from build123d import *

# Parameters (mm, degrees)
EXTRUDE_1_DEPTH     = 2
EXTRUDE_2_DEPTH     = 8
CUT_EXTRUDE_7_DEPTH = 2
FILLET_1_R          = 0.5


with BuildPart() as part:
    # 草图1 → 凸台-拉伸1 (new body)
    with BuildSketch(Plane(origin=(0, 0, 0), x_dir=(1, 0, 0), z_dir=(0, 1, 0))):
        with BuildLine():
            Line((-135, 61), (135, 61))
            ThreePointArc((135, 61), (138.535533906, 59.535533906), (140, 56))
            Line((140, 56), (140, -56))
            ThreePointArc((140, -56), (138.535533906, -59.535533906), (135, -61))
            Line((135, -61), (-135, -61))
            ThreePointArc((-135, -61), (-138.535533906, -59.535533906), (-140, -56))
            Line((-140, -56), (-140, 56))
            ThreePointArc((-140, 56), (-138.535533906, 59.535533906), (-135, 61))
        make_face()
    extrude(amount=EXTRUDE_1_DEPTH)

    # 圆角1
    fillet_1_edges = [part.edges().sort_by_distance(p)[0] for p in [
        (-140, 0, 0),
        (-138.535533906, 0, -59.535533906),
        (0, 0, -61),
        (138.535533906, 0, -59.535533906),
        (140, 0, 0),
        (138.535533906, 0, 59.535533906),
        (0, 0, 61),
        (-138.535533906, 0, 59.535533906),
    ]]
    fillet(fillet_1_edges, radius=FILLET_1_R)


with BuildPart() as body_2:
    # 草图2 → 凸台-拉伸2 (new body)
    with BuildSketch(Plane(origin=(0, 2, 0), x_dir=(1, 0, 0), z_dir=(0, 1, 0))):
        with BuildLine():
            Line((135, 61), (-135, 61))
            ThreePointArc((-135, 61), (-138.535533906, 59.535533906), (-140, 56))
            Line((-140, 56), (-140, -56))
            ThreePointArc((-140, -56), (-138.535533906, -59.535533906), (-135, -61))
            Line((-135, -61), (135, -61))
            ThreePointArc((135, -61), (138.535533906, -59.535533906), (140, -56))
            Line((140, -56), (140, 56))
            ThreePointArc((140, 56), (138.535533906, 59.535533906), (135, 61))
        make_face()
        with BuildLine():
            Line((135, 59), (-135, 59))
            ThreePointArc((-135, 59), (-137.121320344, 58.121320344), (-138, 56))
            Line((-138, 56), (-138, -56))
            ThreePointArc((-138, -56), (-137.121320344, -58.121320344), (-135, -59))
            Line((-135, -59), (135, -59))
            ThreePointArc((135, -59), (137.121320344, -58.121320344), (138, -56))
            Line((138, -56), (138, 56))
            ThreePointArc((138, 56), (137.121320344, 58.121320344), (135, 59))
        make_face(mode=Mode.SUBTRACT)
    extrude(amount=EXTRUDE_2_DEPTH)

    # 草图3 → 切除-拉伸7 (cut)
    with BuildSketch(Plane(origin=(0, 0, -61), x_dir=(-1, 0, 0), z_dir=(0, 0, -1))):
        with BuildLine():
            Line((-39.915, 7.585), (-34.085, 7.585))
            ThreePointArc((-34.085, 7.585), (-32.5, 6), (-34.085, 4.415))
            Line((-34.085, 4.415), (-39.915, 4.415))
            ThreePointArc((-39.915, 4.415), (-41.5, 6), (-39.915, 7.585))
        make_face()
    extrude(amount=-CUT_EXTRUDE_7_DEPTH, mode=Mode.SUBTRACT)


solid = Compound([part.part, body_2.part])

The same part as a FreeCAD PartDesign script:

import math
import FreeCAD as App
import Part
import Sketcher
Q = App.Units.Quantity


def edges_at(feature, points):
    """Names of the edges that pass closest to the given points."""
    edges = feature.Shape.Edges
    near = lambda p: min(range(len(edges)), key=lambda i: edges[i].distToShape(Part.Vertex(*p))[0])
    return sorted({f"Edge{near(p) + 1}" for p in points})

doc = App.newDocument("Part")
body = doc.addObject("PartDesign::Body", "Body")

sketch1 = body.newObject("Sketcher::SketchObject", "Sketch")
sketch1.AttachmentSupport = (doc.getObject("XZ_Plane"), [""])
sketch1.MapMode = "FlatFace"
sketch1.addGeometry([
    Part.LineSegment(App.Vector(135, -61, 0), App.Vector(-135, -61, 0)),
    Part.ArcOfCircle(Part.Circle(App.Vector(-135, -56, 0), App.Vector(0, 0, 1), 5), math.radians(180), math.radians(270)),
    Part.LineSegment(App.Vector(-140, -56, 0), App.Vector(-140, 56, 0)),
    Part.ArcOfCircle(Part.Circle(App.Vector(-135, 56, 0), App.Vector(0, 0, 1), 5), math.radians(90), math.radians(180)),
    Part.LineSegment(App.Vector(-135, 61, 0), App.Vector(135, 61, 0)),
    Part.ArcOfCircle(Part.Circle(App.Vector(135, 56, 0), App.Vector(0, 0, 1), 5), math.radians(0), math.radians(90)),
    Part.LineSegment(App.Vector(140, 56, 0), App.Vector(140, -56, 0)),
    Part.ArcOfCircle(Part.Circle(App.Vector(135, -56, 0), App.Vector(0, 0, 1), 5), math.radians(-90), math.radians(0)),
], False)
sketch1.addConstraint([
    Sketcher.Constraint("Tangent", 0, 2, 1, 2),
    Sketcher.Constraint("Tangent", 1, 1, 2, 1),
    Sketcher.Constraint("Tangent", 2, 2, 3, 2),
    Sketcher.Constraint("Tangent", 3, 1, 4, 1),
    Sketcher.Constraint("Tangent", 4, 2, 5, 2),
    Sketcher.Constraint("Tangent", 5, 1, 6, 1),
    Sketcher.Constraint("Tangent", 6, 2, 7, 2),
    Sketcher.Constraint("Tangent", 7, 1, 0, 1),
    Sketcher.Constraint("Horizontal", 0),
    Sketcher.Constraint("Vertical", 2),
    Sketcher.Constraint("Horizontal", 4),
    Sketcher.Constraint("Vertical", 6),
    Sketcher.Constraint("Equal", 1, 3),
    Sketcher.Constraint("Equal", 3, 5),
    Sketcher.Constraint("Equal", 5, 7),
    Sketcher.Constraint("Symmetric", 1, 3, 5, 3, -1, 1),
    Sketcher.Constraint("Radius", 1, Q("5 mm")),
    Sketcher.Constraint("DistanceX", 0, 2, 0, 1, Q("270 mm")),
    Sketcher.Constraint("DistanceY", 2, 1, 2, 2, Q("112 mm")),
])
pad1 = body.newObject("PartDesign::Pad", "Pad")
pad1.Profile = sketch1
pad1.Length = 2
pad1.Reversed = True
doc.recompute()

fillet = body.newObject("PartDesign::Fillet", "Fillet")
fillet.Base = (pad1, edges_at(pad1, [
    (-140, 0, 0),
    (-138.536, 0, -59.536),
    (0, 0, -61),
    (138.536, 0, -59.536),
    (140, 0, 0),
    (138.536, 0, 59.536),
    (0, 0, 61),
    (-138.536, 0, 59.536),
]))
fillet.Radius = 0.5
body2 = doc.addObject("PartDesign::Body", "Body001")

sketch2 = body2.newObject("Sketcher::SketchObject", "Sketch001")
sketch2.AttachmentSupport = (doc.getObject("XZ_Plane001"), [""])
sketch2.MapMode = "FlatFace"
sketch2.AttachmentOffset = App.Placement(App.Vector(0, 0, -2), App.Rotation())
sketch2.addGeometry([
    Part.LineSegment(App.Vector(135, -61, 0), App.Vector(-135, -61, 0)),
    Part.ArcOfCircle(Part.Circle(App.Vector(-135, -56, 0), App.Vector(0, 0, 1), 5), math.radians(180), math.radians(270)),
    Part.LineSegment(App.Vector(-140, -56, 0), App.Vector(-140, 56, 0)),
    Part.ArcOfCircle(Part.Circle(App.Vector(-135, 56, 0), App.Vector(0, 0, 1), 5), math.radians(90), math.radians(180)),
    Part.LineSegment(App.Vector(-135, 61, 0), App.Vector(135, 61, 0)),
    Part.ArcOfCircle(Part.Circle(App.Vector(135, 56, 0), App.Vector(0, 0, 1), 5), math.radians(0), math.radians(90)),
    Part.LineSegment(App.Vector(140, 56, 0), App.Vector(140, -56, 0)),
    Part.ArcOfCircle(Part.Circle(App.Vector(135, -56, 0), App.Vector(0, 0, 1), 5), math.radians(-90), math.radians(0)),
    Part.LineSegment(App.Vector(-135, -59, 0), App.Vector(135, -59, 0)),
    Part.ArcOfCircle(Part.Circle(App.Vector(135, -56, 0), App.Vector(0, 0, 1), 3), math.radians(-90), math.radians(0)),
    Part.LineSegment(App.Vector(138, -56, 0), App.Vector(138, 56, 0)),
    Part.ArcOfCircle(Part.Circle(App.Vector(135, 56, 0), App.Vector(0, 0, 1), 3), math.radians(0), math.radians(90)),
    Part.LineSegment(App.Vector(135, 59, 0), App.Vector(-135, 59, 0)),
    Part.ArcOfCircle(Part.Circle(App.Vector(-135, 56, 0), App.Vector(0, 0, 1), 3), math.radians(90), math.radians(180)),
    Part.LineSegment(App.Vector(-138, 56, 0), App.Vector(-138, -56, 0)),
    Part.ArcOfCircle(Part.Circle(App.Vector(-135, -56, 0), App.Vector(0, 0, 1), 3), math.radians(180), math.radians(270)),
], False)
sketch2.addConstraint([
    Sketcher.Constraint("Tangent", 0, 2, 1, 2),
    Sketcher.Constraint("Tangent", 1, 1, 2, 1),
    Sketcher.Constraint("Tangent", 2, 2, 3, 2),
    Sketcher.Constraint("Tangent", 3, 1, 4, 1),
    Sketcher.Constraint("Tangent", 4, 2, 5, 2),
    Sketcher.Constraint("Tangent", 5, 1, 6, 1),
    Sketcher.Constraint("Tangent", 6, 2, 7, 2),
    Sketcher.Constraint("Tangent", 7, 1, 0, 1),
    Sketcher.Constraint("Tangent", 8, 2, 9, 1),
    Sketcher.Constraint("Tangent", 9, 2, 10, 1),
    Sketcher.Constraint("Tangent", 10, 2, 11, 1),
    Sketcher.Constraint("Tangent", 11, 2, 12, 1),
    Sketcher.Constraint("Tangent", 12, 2, 13, 1),
    Sketcher.Constraint("Tangent", 13, 2, 14, 1),
    Sketcher.Constraint("Tangent", 14, 2, 15, 1),
    Sketcher.Constraint("Tangent", 15, 2, 8, 1),
    Sketcher.Constraint("Horizontal", 0),
    Sketcher.Constraint("Vertical", 2),
    Sketcher.Constraint("Horizontal", 4),
    Sketcher.Constraint("Vertical", 6),
    Sketcher.Constraint("Horizontal", 8),
    Sketcher.Constraint("Vertical", 10),
    Sketcher.Constraint("Horizontal", 12),
    Sketcher.Constraint("Vertical", 14),
    Sketcher.Constraint("Coincident", 9, 3, 7, 3),
    Sketcher.Constraint("Coincident", 11, 3, 5, 3),
    Sketcher.Constraint("Coincident", 13, 3, 3, 3),
    Sketcher.Constraint("Equal", 1, 3),
    Sketcher.Constraint("Equal", 3, 5),
    Sketcher.Constraint("Equal", 5, 7),
    Sketcher.Constraint("Equal", 13, 15),
    Sketcher.Constraint("Symmetric", 1, 3, 5, 3, -1, 1),
    Sketcher.Constraint("Radius", 1, Q("5 mm")),
    Sketcher.Constraint("Radius", 9, Q("3 mm")),
    Sketcher.Constraint("DistanceX", 0, 2, 0, 1, Q("270 mm")),
    Sketcher.Constraint("DistanceY", 2, 1, 2, 2, Q("112 mm")),
])
pad2 = body2.newObject("PartDesign::Pad", "Pad001")
pad2.Profile = sketch2
pad2.Length = 8
pad2.Reversed = True

sketch3 = body2.newObject("Sketcher::SketchObject", "Sketch002")
sketch3.AttachmentSupport = (doc.getObject("XY_Plane001"), [""])
sketch3.MapMode = "FlatFace"
sketch3.AttachmentOffset = App.Placement(App.Vector(0, 0, -61), App.Rotation())
sketch3.addGeometry([
    Part.LineSegment(App.Vector(34.1, 7.6, 0), App.Vector(39.9, 7.6, 0)),
    Part.ArcOfCircle(Part.Circle(App.Vector(39.9, 6, 0), App.Vector(0, 0, 1), 1.6), math.radians(-90), math.radians(90)),
    Part.LineSegment(App.Vector(39.9, 4.4, 0), App.Vector(34.1, 4.4, 0)),
    Part.ArcOfCircle(Part.Circle(App.Vector(34.1, 6, 0), App.Vector(0, 0, 1), 1.6), math.radians(90), math.radians(270)),
], False)
sketch3.addConstraint([
    Sketcher.Constraint("Tangent", 0, 2, 1, 2),
    Sketcher.Constraint("Tangent", 1, 1, 2, 1),
    Sketcher.Constraint("Tangent", 2, 2, 3, 2),
    Sketcher.Constraint("Tangent", 3, 1, 0, 1),
    Sketcher.Constraint("Horizontal", 0),
    Sketcher.Constraint("Horizontal", 2),
    Sketcher.Constraint("DistanceY", -1, 1, 1, 3, Q("6 mm")),
    Sketcher.Constraint("Radius", 1, Q("1.585 mm")),
    Sketcher.Constraint("DistanceX", 0, 1, 0, 2, Q("5.83 mm")),
    Sketcher.Constraint("DistanceX", -1, 1, 1, 3, Q("39.915 mm")),
])
pocket1 = body2.newObject("PartDesign::Pocket", "Pocket")
pocket1.Profile = sketch3
pocket1.Length = 2
pocket1.Reversed = True

doc.recompute()
